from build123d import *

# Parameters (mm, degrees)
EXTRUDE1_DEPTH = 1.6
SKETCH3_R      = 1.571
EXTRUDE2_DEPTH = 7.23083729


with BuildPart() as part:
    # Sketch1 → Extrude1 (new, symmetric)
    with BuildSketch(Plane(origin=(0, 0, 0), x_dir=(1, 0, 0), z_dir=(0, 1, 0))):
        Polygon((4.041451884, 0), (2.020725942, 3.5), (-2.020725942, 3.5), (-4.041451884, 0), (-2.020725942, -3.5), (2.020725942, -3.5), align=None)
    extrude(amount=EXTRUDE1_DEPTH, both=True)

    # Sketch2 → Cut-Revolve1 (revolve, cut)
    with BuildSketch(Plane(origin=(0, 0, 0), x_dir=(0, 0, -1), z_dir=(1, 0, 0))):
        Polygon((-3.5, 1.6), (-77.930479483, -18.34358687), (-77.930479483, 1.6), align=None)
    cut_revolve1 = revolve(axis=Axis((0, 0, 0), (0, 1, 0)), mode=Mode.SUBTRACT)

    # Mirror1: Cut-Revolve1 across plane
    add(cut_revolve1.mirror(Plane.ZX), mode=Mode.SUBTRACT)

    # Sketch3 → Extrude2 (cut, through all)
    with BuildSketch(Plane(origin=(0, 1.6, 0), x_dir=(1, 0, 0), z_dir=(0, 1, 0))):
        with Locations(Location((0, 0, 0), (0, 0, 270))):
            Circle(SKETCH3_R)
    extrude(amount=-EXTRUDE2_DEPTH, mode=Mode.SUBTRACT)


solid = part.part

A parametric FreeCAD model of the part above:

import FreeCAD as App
import Part
import Sketcher

V = App.Vector
Q = App.Units.Quantity


def add_polygon(sketch, points):
    """Adds a closed chain of lines whose ends are joined by coincident constraints."""
    first, n = sketch.GeometryCount, len(points)
    for a, b in zip(points, points[1:] + points[:1]):
        sketch.addGeometry(Part.LineSegment(App.Vector(*a, 0), App.Vector(*b, 0)), False)
    for i in range(n):
        sketch.addConstraint(Sketcher.Constraint("Coincident", first + i, 2, first + (i + 1) % n, 1))

doc = App.newDocument("Part")
body = doc.addObject("PartDesign::Body", "Body")

sketch1 = body.newObject("Sketcher::SketchObject", "Sketch")
sketch1.AttachmentSupport = (doc.getObject("XZ_Plane"), [""])
sketch1.MapMode = "FlatFace"
add_polygon(sketch1, [(4.041452, 0), (2.020726, -3.5), (-2.020726, -3.5), (-4.041452, 0), (-2.020726, 3.5), (2.020726, 3.5)])
sketch1.addConstraint([
    Sketcher.Constraint("Horizontal", 1),
    Sketcher.Constraint("Horizontal", 4),
    Sketcher.Constraint("Symmetric", 0, 2, 3, 2, -1, 1),
    Sketcher.Constraint("Symmetric", 2, 2, 5, 2, -1, 1),
    Sketcher.Constraint("PointOnObject", 2, 2, -1),
    Sketcher.Constraint("Parallel", 2, 5),
    Sketcher.Constraint("Vertical", 1, 2, 3, 2),
    Sketcher.Constraint("Angle", 0, Q("-120 deg")),
    Sketcher.Constraint("DistanceY", 1, 2, 3, 2, Q("7 mm")),
    Sketcher.Constraint("DistanceX", 1, 2, 1, 1, Q("4.041452 mm")),
])
pad1 = body.newObject("PartDesign::Pad", "Pad")
pad1.Profile = sketch1
pad1.Length = 3.2
pad1.Midplane = True

sketch2 = body.newObject("Sketcher::SketchObject", "Sketch001")
sketch2.AttachmentSupport = (doc.getObject("YZ_Plane"), [""])
sketch2.MapMode = "FlatFace"
add_polygon(sketch2, [(-18.343587, 77.930479), (1.6, 3.5), (1.6, 77.930479)])
sketch2.addConstraint([
    Sketcher.Constraint("Vertical", 1),
    Sketcher.Constraint("Horizontal", 2),
    Sketcher.Constraint("Angle", 0, Q("-75 deg")),
    Sketcher.Constraint("DistanceX", -1, 1, 0, 2, Q("1.6 mm")),
    Sketcher.Constraint("DistanceY", -1, 1, 0, 2, Q("3.5 mm")),
    Sketcher.Constraint("DistanceY", 1, 1, 1, 2, Q("74.430479 mm")),
])
groove = body.newObject("PartDesign::Groove", "Groove")
groove.Profile = sketch2
groove.ReferenceAxis = (sketch2, ["H_Axis"])
groove.Angle = 360
doc.recompute()

mirrored = body.newObject("PartDesign::Mirrored", "Mirrored")
mirrored.Originals = [groove]
mirrored.MirrorPlane = (doc.getObject("XZ_Plane"), [""])
body.Tip = mirrored

sketch3 = body.newObject("Sketcher::SketchObject", "Sketch002")
sketch3.AttachmentSupport = (doc.getObject("XZ_Plane"), [""])
sketch3.MapMode = "FlatFace"
sketch3.AttachmentOffset = App.Placement(V(0, 0, -1.6), App.Rotation())
sketch3.addGeometry(Part.Circle(V(0, 0, 0), V(0, 0, 1), 1.571), False)
sketch3.addConstraint([
    Sketcher.Constraint("Coincident", 0, 3, -1, 1),
    Sketcher.Constraint("Diameter", 0, Q("3.142 mm")),
])
pocket1 = body.newObject("PartDesign::Pocket", "Pocket")
pocket1.Profile = sketch3
pocket1.Type = "ThroughAll"
pocket1.Reversed = True

doc.recompute()
